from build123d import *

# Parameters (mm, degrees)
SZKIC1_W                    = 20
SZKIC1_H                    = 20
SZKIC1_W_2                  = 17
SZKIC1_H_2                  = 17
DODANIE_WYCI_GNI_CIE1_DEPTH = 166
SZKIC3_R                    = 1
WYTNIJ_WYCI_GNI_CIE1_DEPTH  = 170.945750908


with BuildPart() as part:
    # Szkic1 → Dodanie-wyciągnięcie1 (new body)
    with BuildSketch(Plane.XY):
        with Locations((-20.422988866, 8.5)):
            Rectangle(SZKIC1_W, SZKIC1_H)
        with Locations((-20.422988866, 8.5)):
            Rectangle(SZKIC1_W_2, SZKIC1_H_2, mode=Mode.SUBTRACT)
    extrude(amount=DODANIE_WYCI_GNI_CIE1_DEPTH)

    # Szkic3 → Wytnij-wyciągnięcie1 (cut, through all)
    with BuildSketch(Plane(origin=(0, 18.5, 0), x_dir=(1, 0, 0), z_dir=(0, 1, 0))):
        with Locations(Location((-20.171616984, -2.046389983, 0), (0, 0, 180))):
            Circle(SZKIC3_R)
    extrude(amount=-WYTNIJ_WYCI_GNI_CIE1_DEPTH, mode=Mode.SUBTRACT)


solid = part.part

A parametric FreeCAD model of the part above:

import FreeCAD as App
import Part
import Sketcher

V = App.Vector
Q = App.Units.Quantity

doc = App.newDocument("Part")
body = doc.addObject("PartDesign::Body", "Body")

# Sketch on XY plane
sketch1 = body.newObject("Sketcher::SketchObject", "Sketch")
sketch1.AttachmentSupport = (doc.getObject("XY_Plane"), [""])
sketch1.MapMode = "FlatFace"
sketch1.addGeometry(Part.LineSegment(V(-30.422989, 18.5, 0), V(-30.422989, -1.5, 0)), False)
sketch1.addGeometry(Part.LineSegment(V(-30.422989, -1.5, 0), V(-10.422989, -1.5, 0)), False)
sketch1.addGeometry(Part.LineSegment(V(-10.422989, -1.5, 0), V(-10.422989, 18.5, 0)), False)
sketch1.addGeometry(Part.LineSegment(V(-10.422989, 18.5, 0), V(-30.422989, 18.5, 0)), False)
sketch1.addGeometry(Part.LineSegment(V(-11.922989, 0, 0), V(-28.922989, 0, 0)), False)
sketch1.addGeometry(Part.LineSegment(V(-28.922989, 0, 0), V(-28.922989, 17, 0)), False)
sketch1.addGeometry(Part.LineSegment(V(-28.922989, 17, 0), V(-11.922989, 17, 0)), False)
sketch1.addGeometry(Part.LineSegment(V(-11.922989, 17, 0), V(-11.922989, 0, 0)), False)
sketch1.addConstraint(Sketcher.Constraint("Coincident", 0, 2, 1, 1))
sketch1.addConstraint(Sketcher.Constraint("Coincident", 1, 2, 2, 1))
sketch1.addConstraint(Sketcher.Constraint("Coincident", 2, 2, 3, 1))
sketch1.addConstraint(Sketcher.Constraint("Coincident", 3, 2, 0, 1))
sketch1.addConstraint(Sketcher.Constraint("Coincident", 4, 2, 5, 1))
sketch1.addConstraint(Sketcher.Constraint("Coincident", 5, 2, 6, 1))
sketch1.addConstraint(Sketcher.Constraint("Coincident", 6, 2, 7, 1))
sketch1.addConstraint(Sketcher.Constraint("Coincident", 7, 2, 4, 1))
sketch1.addConstraint(Sketcher.Constraint("Vertical", 0))
sketch1.addConstraint(Sketcher.Constraint("Horizontal", 1))
sketch1.addConstraint(Sketcher.Constraint("Vertical", 2))
sketch1.addConstraint(Sketcher.Constraint("Horizontal", 3))
sketch1.addConstraint(Sketcher.Constraint("Horizontal", 4))
sketch1.addConstraint(Sketcher.Constraint("Vertical", 5))
sketch1.addConstraint(Sketcher.Constraint("Horizontal", 6))
sketch1.addConstraint(Sketcher.Constraint("Vertical", 7))
sketch1.addConstraint(Sketcher.Constraint("PointOnObject", 4, 2, -1))
sketch1.addConstraint(Sketcher.Constraint("Equal", 3, 0))
sketch1.addConstraint(Sketcher.Constraint("Equal", 6, 5))
sketch1.addConstraint(Sketcher.Constraint("DistanceX", 1, 1, 1, 2, Q("20 mm")))
sketch1.addConstraint(Sketcher.Constraint("DistanceX", 4, 2, 4, 1, Q("17 mm")))
sketch1.addConstraint(Sketcher.Constraint("DistanceY", 0, 2, -1, 1, Q("1.5 mm")))
sketch1.addConstraint(Sketcher.Constraint("DistanceX", 0, 2, 4, 2, Q("1.5 mm")))
sketch1.addConstraint(Sketcher.Constraint("DistanceX", 0, 2, -1, 1, Q("30.422989 mm")))
pad1 = body.newObject("PartDesign::Pad", "Pad")
pad1.Profile = sketch1
pad1.Length = 166

# Sketch on XZ plane
sketch2 = body.newObject("Sketcher::SketchObject", "Sketch001")
sketch2.AttachmentSupport = (doc.getObject("XZ_Plane"), [""])
sketch2.MapMode = "FlatFace"
sketch2.AttachmentOffset = App.Placement(V(0, 0, -18.5), App.Rotation())
sketch2.addGeometry(Part.Circle(V(-20.171617, 2.04639, 0), V(0, 0, 1), 1), False)
sketch2.addConstraint(Sketcher.Constraint("Diameter", 0, Q("2 mm")))
sketch2.addConstraint(Sketcher.Constraint("DistanceY", -1, 1, 0, 3, Q("2.04639 mm")))
sketch2.addConstraint(Sketcher.Constraint("DistanceX", 0, 3, -1, 1, Q("20.171617 mm")))
pocket1 = body.newObject("PartDesign::Pocket", "Pocket")
pocket1.Profile = sketch2
pocket1.Type = "ThroughAll"
pocket1.Reversed = True

doc.recompute()
